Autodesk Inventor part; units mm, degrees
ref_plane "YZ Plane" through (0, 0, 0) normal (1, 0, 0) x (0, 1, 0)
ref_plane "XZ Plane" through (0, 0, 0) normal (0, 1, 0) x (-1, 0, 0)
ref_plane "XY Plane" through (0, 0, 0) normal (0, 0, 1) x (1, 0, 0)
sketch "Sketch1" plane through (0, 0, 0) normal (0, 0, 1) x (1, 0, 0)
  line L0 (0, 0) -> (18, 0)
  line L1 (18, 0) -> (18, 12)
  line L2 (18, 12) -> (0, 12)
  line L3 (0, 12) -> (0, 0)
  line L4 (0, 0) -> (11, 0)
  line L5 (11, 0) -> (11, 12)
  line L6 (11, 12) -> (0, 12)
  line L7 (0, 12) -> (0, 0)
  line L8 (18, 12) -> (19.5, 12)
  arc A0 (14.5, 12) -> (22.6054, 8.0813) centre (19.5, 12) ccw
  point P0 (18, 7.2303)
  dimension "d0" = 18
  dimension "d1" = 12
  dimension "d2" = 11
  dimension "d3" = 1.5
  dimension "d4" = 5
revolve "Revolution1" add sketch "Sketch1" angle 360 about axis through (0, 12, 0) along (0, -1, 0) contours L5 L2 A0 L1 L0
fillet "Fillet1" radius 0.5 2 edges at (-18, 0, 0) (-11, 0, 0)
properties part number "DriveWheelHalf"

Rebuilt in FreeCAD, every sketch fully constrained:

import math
import FreeCAD as App
import Part
import Sketcher

V = App.Vector


def edges_at(feature, points):
    """Names of the edges that pass closest to the given points."""
    edges = feature.Shape.Edges
    near = lambda p: min(range(len(edges)), key=lambda i: edges[i].distToShape(Part.Vertex(*p))[0])
    return sorted({f"Edge{near(p) + 1}" for p in points})

doc = App.newDocument("Part")
body = doc.addObject("PartDesign::Body", "Body")

sketch1 = doc.addObject("Sketcher::SketchObject", "Sketch")
body.addObject(sketch1)
sketch1.AttachmentSupport = (doc.XY_Plane, [""])
sketch1.MapMode = "FlatFace"
sketch1.addGeometry([
    Part.LineSegment(V(11, 12, 0), V(11, 0, 0)),
    Part.LineSegment(V(11, 0, 0), V(18, 0, 0)),
    Part.LineSegment(V(18, 0, 0), V(18, 7.2, 0)),
    Part.ArcOfCircle(Part.Circle(V(19.5, 12, 0), V(0, 0, 1), 5), math.radians(180), math.radians(253)),
    Part.LineSegment(V(14.5, 12, 0), V(11, 12, 0)),
], False)
sketch1.addConstraint([
    Sketcher.Constraint("Coincident", 0, 2, 1, 1),
    Sketcher.Constraint("Coincident", 1, 2, 2, 1),
    Sketcher.Constraint("Coincident", 2, 2, 3, 2),
    Sketcher.Constraint("Coincident", 3, 1, 4, 1),
    Sketcher.Constraint("Coincident", 4, 2, 0, 1),
    Sketcher.Constraint("Vertical", 0),
    Sketcher.Constraint("Horizontal", 1),
    Sketcher.Constraint("Vertical", 2),
    Sketcher.Constraint("Horizontal", 4),
    Sketcher.Constraint("PointOnObject", 0, 2, -1),
    Sketcher.Constraint("Radius", 3, 5.0),
    Sketcher.Constraint("DistanceY", 0, 2, 0, 1, 12.0),
    Sketcher.Constraint("DistanceY", -1, 1, 3, 3, 12.0),
    Sketcher.Constraint("DistanceX", -1, 1, 0, 2, 11.0),
    Sketcher.Constraint("DistanceX", -1, 1, 1, 2, 18.0),
    Sketcher.Constraint("DistanceX", 1, 2, 3, 3, 1.5),
])
revolution = doc.addObject("PartDesign::Revolution", "Revolution")
body.addObject(revolution)
revolution.Profile = sketch1
revolution.ReferenceAxis = (sketch1, ["V_Axis"])
revolution.Angle = 360
doc.recompute()

fillet = doc.addObject("PartDesign::Fillet", "Fillet")
body.addObject(fillet)
fillet.Base = (revolution, edges_at(revolution, [(-18, 0, 0), (-11, 0, 0)]))
fillet.Radius = 0.5

doc.recompute()
